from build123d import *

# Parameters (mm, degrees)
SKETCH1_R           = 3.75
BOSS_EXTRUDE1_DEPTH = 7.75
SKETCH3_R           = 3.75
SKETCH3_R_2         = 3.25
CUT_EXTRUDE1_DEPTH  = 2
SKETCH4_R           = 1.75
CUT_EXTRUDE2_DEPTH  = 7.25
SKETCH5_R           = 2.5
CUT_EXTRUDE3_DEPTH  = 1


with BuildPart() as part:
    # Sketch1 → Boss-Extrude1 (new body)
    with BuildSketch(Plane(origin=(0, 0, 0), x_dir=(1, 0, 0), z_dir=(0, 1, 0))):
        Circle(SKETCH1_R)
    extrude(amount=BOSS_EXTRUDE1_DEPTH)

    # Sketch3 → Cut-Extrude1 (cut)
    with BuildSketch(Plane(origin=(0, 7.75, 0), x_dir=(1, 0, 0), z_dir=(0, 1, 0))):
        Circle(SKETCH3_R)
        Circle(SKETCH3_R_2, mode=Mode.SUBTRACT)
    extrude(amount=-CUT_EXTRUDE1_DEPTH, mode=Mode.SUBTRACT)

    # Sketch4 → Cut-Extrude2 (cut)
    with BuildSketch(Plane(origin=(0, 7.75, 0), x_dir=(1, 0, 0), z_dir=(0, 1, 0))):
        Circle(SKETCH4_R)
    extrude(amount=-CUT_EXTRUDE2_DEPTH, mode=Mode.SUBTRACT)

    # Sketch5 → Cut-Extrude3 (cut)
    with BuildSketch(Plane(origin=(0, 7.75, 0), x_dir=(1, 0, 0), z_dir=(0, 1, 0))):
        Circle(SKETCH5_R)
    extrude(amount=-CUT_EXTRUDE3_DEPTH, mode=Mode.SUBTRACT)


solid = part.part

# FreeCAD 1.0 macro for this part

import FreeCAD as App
import Part
import Sketcher

V = App.Vector

doc = App.newDocument("Part")
body = doc.addObject("PartDesign::Body", "Body")

sketch1 = doc.addObject("Sketcher::SketchObject", "Sketch")
body.addObject(sketch1)
sketch1.AttachmentSupport = (doc.XZ_Plane, [""])
sketch1.MapMode = "FlatFace"
sketch1.addGeometry(Part.Circle(V(0, 0, 0), V(0, 0, 1), 3.8), False)
sketch1.addConstraint(Sketcher.Constraint("Coincident", 0, 3, -1, 1))
sketch1.addConstraint(Sketcher.Constraint("Diameter", 0, 7.5))
pad1 = doc.addObject("PartDesign::Pad", "Pad")
body.addObject(pad1)
pad1.Profile = sketch1
pad1.Length = 7.75
pad1.Reversed = True

sketch2 = doc.addObject("Sketcher::SketchObject", "Sketch001")
body.addObject(sketch2)
sketch2.AttachmentSupport = (doc.XZ_Plane, [""])
sketch2.MapMode = "FlatFace"
sketch2.AttachmentOffset = App.Placement(V(0, 0, -7.75), App.Rotation())
sketch2.addGeometry(Part.Circle(V(0, 0, 0), V(0, 0, 1), 3.8), False)
sketch2.addGeometry(Part.Circle(V(0, 0, 0), V(0, 0, 1), 3.2), False)
sketch2.addConstraint(Sketcher.Constraint("Coincident", 0, 3, -1, 1))
sketch2.addConstraint(Sketcher.Constraint("Coincident", 1, 3, -1, 1))
sketch2.addConstraint(Sketcher.Constraint("Diameter", 0, 7.5))
sketch2.addConstraint(Sketcher.Constraint("Diameter", 1, 6.5))
pocket1 = doc.addObject("PartDesign::Pocket", "Pocket")
body.addObject(pocket1)
pocket1.Profile = sketch2
pocket1.Length = 2
pocket1.Reversed = True

sketch3 = doc.addObject("Sketcher::SketchObject", "Sketch002")
body.addObject(sketch3)
sketch3.AttachmentSupport = (doc.XZ_Plane, [""])
sketch3.MapMode = "FlatFace"
sketch3.AttachmentOffset = App.Placement(V(0, 0, -7.75), App.Rotation())
sketch3.addGeometry(Part.Circle(V(0, 0, 0), V(0, 0, 1), 1.8), False)
sketch3.addConstraint(Sketcher.Constraint("Coincident", 0, 3, -1, 1))
sketch3.addConstraint(Sketcher.Constraint("Diameter", 0, 3.5))
pocket2 = doc.addObject("PartDesign::Pocket", "Pocket001")
body.addObject(pocket2)
pocket2.Profile = sketch3
pocket2.Length = 7.25
pocket2.Reversed = True

sketch4 = doc.addObject("Sketcher::SketchObject", "Sketch003")
body.addObject(sketch4)
sketch4.AttachmentSupport = (doc.XZ_Plane, [""])
sketch4.MapMode = "FlatFace"
sketch4.AttachmentOffset = App.Placement(V(0, 0, -7.75), App.Rotation())
sketch4.addGeometry(Part.Circle(V(0, 0, 0), V(0, 0, 1), 2.5), False)
sketch4.addConstraint(Sketcher.Constraint("Coincident", 0, 3, -1, 1))
sketch4.addConstraint(Sketcher.Constraint("Diameter", 0, 5.0))
pocket3 = doc.addObject("PartDesign::Pocket", "Pocket002")
body.addObject(pocket3)
pocket3.Profile = sketch4
pocket3.Length = 1
pocket3.Reversed = True

doc.recompute()
